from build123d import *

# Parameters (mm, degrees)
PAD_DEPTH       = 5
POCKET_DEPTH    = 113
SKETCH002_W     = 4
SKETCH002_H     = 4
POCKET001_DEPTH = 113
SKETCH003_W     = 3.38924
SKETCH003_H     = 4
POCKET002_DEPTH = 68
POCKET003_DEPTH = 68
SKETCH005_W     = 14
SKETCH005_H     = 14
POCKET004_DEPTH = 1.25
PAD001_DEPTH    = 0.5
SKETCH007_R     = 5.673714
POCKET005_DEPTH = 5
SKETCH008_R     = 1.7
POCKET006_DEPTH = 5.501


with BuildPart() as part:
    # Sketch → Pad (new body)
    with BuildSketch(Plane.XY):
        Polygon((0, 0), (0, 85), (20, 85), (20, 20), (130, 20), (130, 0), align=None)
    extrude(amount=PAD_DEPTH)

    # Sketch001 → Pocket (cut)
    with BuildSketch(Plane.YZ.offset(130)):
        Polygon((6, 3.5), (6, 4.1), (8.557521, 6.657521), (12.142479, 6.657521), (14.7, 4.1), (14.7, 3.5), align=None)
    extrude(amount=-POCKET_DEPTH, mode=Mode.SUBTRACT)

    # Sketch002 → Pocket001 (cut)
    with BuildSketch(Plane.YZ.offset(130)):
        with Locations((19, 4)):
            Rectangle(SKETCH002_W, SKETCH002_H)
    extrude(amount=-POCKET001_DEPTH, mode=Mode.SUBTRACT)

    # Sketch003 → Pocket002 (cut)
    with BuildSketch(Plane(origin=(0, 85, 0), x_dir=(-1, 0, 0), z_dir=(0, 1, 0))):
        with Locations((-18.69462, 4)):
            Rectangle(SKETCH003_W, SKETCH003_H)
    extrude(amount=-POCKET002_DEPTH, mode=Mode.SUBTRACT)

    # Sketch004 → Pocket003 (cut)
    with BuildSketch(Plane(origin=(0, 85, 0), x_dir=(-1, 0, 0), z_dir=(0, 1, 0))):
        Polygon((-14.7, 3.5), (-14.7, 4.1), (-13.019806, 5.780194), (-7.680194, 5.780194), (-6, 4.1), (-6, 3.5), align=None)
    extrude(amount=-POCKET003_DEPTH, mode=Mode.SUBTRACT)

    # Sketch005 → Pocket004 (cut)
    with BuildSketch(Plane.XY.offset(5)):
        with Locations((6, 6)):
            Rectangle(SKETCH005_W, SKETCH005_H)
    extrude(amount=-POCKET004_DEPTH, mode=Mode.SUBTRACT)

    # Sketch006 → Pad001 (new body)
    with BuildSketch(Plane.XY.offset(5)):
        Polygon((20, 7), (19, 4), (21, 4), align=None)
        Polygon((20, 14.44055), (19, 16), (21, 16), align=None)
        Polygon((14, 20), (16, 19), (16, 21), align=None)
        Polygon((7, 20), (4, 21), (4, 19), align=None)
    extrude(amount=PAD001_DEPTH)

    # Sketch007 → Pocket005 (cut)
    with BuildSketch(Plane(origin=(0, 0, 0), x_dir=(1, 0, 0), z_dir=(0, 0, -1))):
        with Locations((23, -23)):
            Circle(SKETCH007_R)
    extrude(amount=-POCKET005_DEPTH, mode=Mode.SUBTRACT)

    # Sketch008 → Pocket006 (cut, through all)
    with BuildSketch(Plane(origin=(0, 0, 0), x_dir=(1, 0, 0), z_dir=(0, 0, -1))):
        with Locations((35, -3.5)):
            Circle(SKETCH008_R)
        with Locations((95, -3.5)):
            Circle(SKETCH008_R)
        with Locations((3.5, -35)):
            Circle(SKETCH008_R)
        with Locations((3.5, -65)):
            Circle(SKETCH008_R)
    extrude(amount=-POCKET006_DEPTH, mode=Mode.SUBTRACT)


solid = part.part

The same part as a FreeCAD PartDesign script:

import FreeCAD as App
import Part
import Sketcher


def add_polygon(sketch, points):
    """Adds a closed chain of lines whose ends are joined by coincident constraints."""
    first, n = sketch.GeometryCount, len(points)
    for a, b in zip(points, points[1:] + points[:1]):
        sketch.addGeometry(Part.LineSegment(App.Vector(*a, 0), App.Vector(*b, 0)), False)
    for i in range(n):
        sketch.addConstraint(Sketcher.Constraint("Coincident", first + i, 2, first + (i + 1) % n, 1))

doc = App.newDocument("Part")
body = doc.addObject("PartDesign::Body", "Body")

# Sketch on XY plane
sketch1 = body.newObject("Sketcher::SketchObject", "Sketch")
sketch1.AttachmentSupport = (doc.getObject("XY_Plane"), [""])
sketch1.MapMode = "FlatFace"
add_polygon(sketch1, [(0, 85), (0, 0), (130, 0), (130, 20), (20, 20), (20, 85)])  # lines 0-5
sketch1.addConstraint([
    Sketcher.Constraint("Vertical", 0),
    Sketcher.Constraint("Horizontal", 1),
    Sketcher.Constraint("Vertical", 2),
    Sketcher.Constraint("Horizontal", 3),
    Sketcher.Constraint("Vertical", 4),
    Sketcher.Constraint("Horizontal", 5),
    Sketcher.Constraint("Coincident", 0, 2, -1, 1),
    Sketcher.Constraint("Equal", 5, 2),
    Sketcher.Constraint("DistanceX", 1, 1, 1, 2, 130.0),
    Sketcher.Constraint("DistanceX", 3, 2, 3, 1, 110.0),
    Sketcher.Constraint("DistanceY", 0, 2, 0, 1, 85.0),
])
pad1 = body.newObject("PartDesign::Pad", "Pad")
pad1.Profile = sketch1
pad1.Length = 5

# Sketch on YZ plane
sketch2 = body.newObject("Sketcher::SketchObject", "Sketch001")
sketch2.AttachmentSupport = (doc.getObject("YZ_Plane"), [""])
sketch2.MapMode = "FlatFace"
sketch2.AttachmentOffset = App.Placement(App.Vector(0, 0, 130), App.Rotation())
add_polygon(sketch2, [(6, 4.1), (6, 3.5), (14.7, 3.5), (14.7, 4.1), (12.1, 6.7), (8.6, 6.7)])  # lines 0-5
sketch2.addConstraint([
    Sketcher.Constraint("Vertical", 0),
    Sketcher.Constraint("Horizontal", 1),
    Sketcher.Constraint("Vertical", 2),
    Sketcher.Constraint("Horizontal", 4),
    Sketcher.Constraint("Perpendicular", 3, 5),
    Sketcher.Constraint("Horizontal", 2, 2, 5, 2),
    Sketcher.Constraint("Equal", 3, 5),
    Sketcher.Constraint("DistanceX", 1, 1, 1, 2, 8.7),
    Sketcher.Constraint("DistanceY", 0, 2, 0, 1, 0.6),
    Sketcher.Constraint("DistanceX", -1, 1, 0, 2, 6.0),
    Sketcher.Constraint("DistanceY", -1, 1, 0, 2, 3.5),
    Sketcher.Constraint("DistanceX", 4, 2, 4, 1, 3.584958),
])
pocket1 = body.newObject("PartDesign::Pocket", "Pocket")
pocket1.Profile = sketch2
pocket1.Length = 113

# Sketch on YZ plane
sketch3 = body.newObject("Sketcher::SketchObject", "Sketch002")
sketch3.AttachmentSupport = (doc.getObject("YZ_Plane"), [""])
sketch3.MapMode = "FlatFace"
sketch3.AttachmentOffset = App.Placement(App.Vector(0, 0, 130), App.Rotation())
add_polygon(sketch3, [(17, 6), (17, 2), (21, 2), (21, 6)])  # lines 0-3
sketch3.addConstraint([
    Sketcher.Constraint("Vertical", 0),
    Sketcher.Constraint("Horizontal", 1),
    Sketcher.Constraint("Vertical", 2),
    Sketcher.Constraint("Horizontal", 3),
    Sketcher.Constraint("Equal", 3, 0),
    Sketcher.Constraint("DistanceX", 1, 1, 1, 2, 4.0),
    Sketcher.Constraint("DistanceX", -1, 1, 0, 2, 17.0),
    Sketcher.Constraint("DistanceY", -1, 1, 0, 2, 2.0),
])
pocket2 = body.newObject("PartDesign::Pocket", "Pocket001")
pocket2.Profile = sketch3
pocket2.Length = 113

# Sketch on XZ plane
sketch4 = body.newObject("Sketcher::SketchObject", "Sketch003")
sketch4.AttachmentSupport = (doc.getObject("XZ_Plane"), [""])
sketch4.MapMode = "FlatFace"
sketch4.AttachmentOffset = App.Placement(App.Vector(0, 0, -85), App.Rotation())
add_polygon(sketch4, [(20.4, 6), (20.4, 2), (17, 2), (17, 6)])  # lines 0-3
sketch4.addConstraint([
    Sketcher.Constraint("Vertical", 0),
    Sketcher.Constraint("Horizontal", 1),
    Sketcher.Constraint("Vertical", 2),
    Sketcher.Constraint("Horizontal", 3),
    Sketcher.Constraint("DistanceY", 0, 2, 0, 1, 4.0),
    Sketcher.Constraint("DistanceY", -1, 1, 0, 2, 2.0),
    Sketcher.Constraint("DistanceX", -1, 1, 1, 2, 17.0),
    Sketcher.Constraint("DistanceX", 1, 2, 1, 1, 3.38924),
])
pocket3 = body.newObject("PartDesign::Pocket", "Pocket002")
pocket3.Profile = sketch4
pocket3.Length = 68
pocket3.Reversed = True

# Sketch on XZ plane
sketch5 = body.newObject("Sketcher::SketchObject", "Sketch004")
sketch5.AttachmentSupport = (doc.getObject("XZ_Plane"), [""])
sketch5.MapMode = "FlatFace"
sketch5.AttachmentOffset = App.Placement(App.Vector(0, 0, -85), App.Rotation())
add_polygon(sketch5, [(14.7, 4.1), (14.7, 3.5), (6, 3.5), (6, 4.1), (7.7, 5.8), (13, 5.8)])  # lines 0-5
sketch5.addConstraint([
    Sketcher.Constraint("Vertical", 0),
    Sketcher.Constraint("Horizontal", 1),
    Sketcher.Constraint("Vertical", 2),
    Sketcher.Constraint("Horizontal", 4),
    Sketcher.Constraint("Perpendicular", 3, 5),
    Sketcher.Constraint("Horizontal", 2, 2, 5, 2),
    Sketcher.Constraint("Equal", 3, 5),
    Sketcher.Constraint("DistanceX", 1, 2, 1, 1, 8.7),
    Sketcher.Constraint("DistanceY", 0, 2, 0, 1, 0.6),
    Sketcher.Constraint("DistanceX", -1, 1, 1, 2, 6.0),
    Sketcher.Constraint("DistanceY", -1, 1, 0, 2, 3.5),
    Sketcher.Constraint("DistanceX", 4, 1, 4, 2, 5.339612),
])
pocket4 = body.newObject("PartDesign::Pocket", "Pocket003")
pocket4.Profile = sketch5
pocket4.Length = 68
pocket4.Reversed = True

# Sketch on XY plane
sketch6 = body.newObject("Sketcher::SketchObject", "Sketch005")
sketch6.AttachmentSupport = (doc.getObject("XY_Plane"), [""])
sketch6.MapMode = "FlatFace"
sketch6.AttachmentOffset = App.Placement(App.Vector(0, 0, 5), App.Rotation())
add_polygon(sketch6, [(-1, 13), (-1, -1), (13, -1), (13, 13)])  # lines 0-3
sketch6.addConstraint([
    Sketcher.Constraint("Vertical", 0),
    Sketcher.Constraint("Horizontal", 1),
    Sketcher.Constraint("Vertical", 2),
    Sketcher.Constraint("Horizontal", 3),
    Sketcher.Constraint("Equal", 3, 0),
    Sketcher.Constraint("DistanceX", 1, 1, 1, 2, 14.0),
    Sketcher.Constraint("DistanceX", 0, 2, -1, 1, 1.0),
    Sketcher.Constraint("DistanceY", 0, 2, -1, 1, 1.0),
])
pocket5 = body.newObject("PartDesign::Pocket", "Pocket004")
pocket5.Profile = sketch6
pocket5.Length = 1.25

# Sketch on XY plane
sketch7 = body.newObject("Sketcher::SketchObject", "Sketch006")
sketch7.AttachmentSupport = (doc.getObject("XY_Plane"), [""])
sketch7.MapMode = "FlatFace"
sketch7.AttachmentOffset = App.Placement(App.Vector(0, 0, 5), App.Rotation())
add_polygon(sketch7, [(20, 7), (19, 4), (21, 4)])  # lines 0-2
add_polygon(sketch7, [(19, 16), (20, 14.4), (21, 16)])  # lines 3-5
add_polygon(sketch7, [(14, 20), (16, 19), (16, 21)])  # lines 6-8
add_polygon(sketch7, [(7, 20), (4, 21), (4, 19)])  # lines 9-11
sketch7.addConstraint([
    Sketcher.Constraint("Horizontal", 1),
    Sketcher.Constraint("Horizontal", 5),
    Sketcher.Constraint("Vertical", 7),
    Sketcher.Constraint("Vertical", 10),
    Sketcher.Constraint("Perpendicular", 0, 9),
    Sketcher.Constraint("Perpendicular", 2, 11),
    Sketcher.Constraint("Horizontal", 7, 2, 9, 2),
    Sketcher.Constraint("Horizontal", 6, 2, 10, 2),
    Sketcher.Constraint("Horizontal", 8, 2, 11, 2),
    Sketcher.Constraint("Vertical", 2, 2, 3, 2),
    Sketcher.Constraint("Vertical", 1, 2, 4, 2),
    Sketcher.Constraint("Vertical", 0, 2, 5, 2),
    Sketcher.Constraint("Equal", 5, 7),
    Sketcher.Constraint("Equal", 0, 2),
    Sketcher.Constraint("DistanceX", 1, 1, 1, 2, 2.0),
    Sketcher.Constraint("DistanceX", -1, 1, 0, 2, 19.0),
    Sketcher.Constraint("DistanceY", -1, 1, 0, 2, 4.0),
    Sketcher.Constraint("DistanceY", -1, 1, 2, 2, 7.0),
    Sketcher.Constraint("DistanceY", -1, 1, 4, 2, 16.0),
    Sketcher.Constraint("DistanceX", -1, 1, 6, 2, 16.0),
    Sketcher.Constraint("DistanceY", -1, 1, 6, 2, 19.0),
    Sketcher.Constraint("DistanceX", -1, 1, 8, 2, 14.0),
    Sketcher.Constraint("DistanceX", -1, 1, 9, 2, 4.0),
    Sketcher.Constraint("DistanceY", -1, 1, 3, 2, 14.44055),
])
pad2 = body.newObject("PartDesign::Pad", "Pad001")
pad2.Profile = sketch7
pad2.Length = 0.5

# Sketch on XY plane
sketch8 = body.newObject("Sketcher::SketchObject", "Sketch007")
sketch8.AttachmentSupport = (doc.getObject("XY_Plane"), [""])
sketch8.MapMode = "FlatFace"
sketch8.addGeometry(Part.Circle(App.Vector(23, 23, 0), App.Vector(0, 0, 1), 6), False)
sketch8.addConstraint([
    Sketcher.Constraint("DistanceX", -1, 1, 0, 3, 23.0),
    Sketcher.Constraint("DistanceY", -1, 1, 0, 3, 23.0),
    Sketcher.Constraint("Diameter", 0, 11.347428),
])
pocket6 = body.newObject("PartDesign::Pocket", "Pocket005")
pocket6.Profile = sketch8
pocket6.Length = 5
pocket6.Reversed = True

# Sketch on XY plane
sketch9 = body.newObject("Sketcher::SketchObject", "Sketch008")
sketch9.AttachmentSupport = (doc.getObject("XY_Plane"), [""])
sketch9.MapMode = "FlatFace"
sketch9.addGeometry([
    Part.Circle(App.Vector(35, 3.5, 0), App.Vector(0, 0, 1), 1.7),
    Part.Circle(App.Vector(95, 3.5, 0), App.Vector(0, 0, 1), 1.7),
    Part.Circle(App.Vector(3.5, 35, 0), App.Vector(0, 0, 1), 1.7),
    Part.Circle(App.Vector(3.5, 65, 0), App.Vector(0, 0, 1), 1.7),
], False)
sketch9.addConstraint([
    Sketcher.Constraint("Equal", 0, 1),
    Sketcher.Constraint("Equal", 1, 2),
    Sketcher.Constraint("Equal", 2, 3),
    Sketcher.Constraint("Horizontal", 0, 3, 1, 3),
    Sketcher.Constraint("Vertical", 2, 3, 3, 3),
    Sketcher.Constraint("Diameter", 0, 3.4),
    Sketcher.Constraint("DistanceX", -1, 1, 0, 3, 35.0),
    Sketcher.Constraint("DistanceX", -1, 1, 1, 3, 95.0),
    Sketcher.Constraint("DistanceY", -1, 1, 2, 3, 35.0),
    Sketcher.Constraint("DistanceY", -1, 1, 3, 3, 65.0),
    Sketcher.Constraint("DistanceY", -1, 1, 0, 3, 3.5),
    Sketcher.Constraint("DistanceX", -1, 1, 2, 3, 3.5),
])
pocket7 = body.newObject("PartDesign::Pocket", "Pocket006")
pocket7.Profile = sketch9
pocket7.Type = "ThroughAll"
pocket7.Reversed = True

doc.recompute()
